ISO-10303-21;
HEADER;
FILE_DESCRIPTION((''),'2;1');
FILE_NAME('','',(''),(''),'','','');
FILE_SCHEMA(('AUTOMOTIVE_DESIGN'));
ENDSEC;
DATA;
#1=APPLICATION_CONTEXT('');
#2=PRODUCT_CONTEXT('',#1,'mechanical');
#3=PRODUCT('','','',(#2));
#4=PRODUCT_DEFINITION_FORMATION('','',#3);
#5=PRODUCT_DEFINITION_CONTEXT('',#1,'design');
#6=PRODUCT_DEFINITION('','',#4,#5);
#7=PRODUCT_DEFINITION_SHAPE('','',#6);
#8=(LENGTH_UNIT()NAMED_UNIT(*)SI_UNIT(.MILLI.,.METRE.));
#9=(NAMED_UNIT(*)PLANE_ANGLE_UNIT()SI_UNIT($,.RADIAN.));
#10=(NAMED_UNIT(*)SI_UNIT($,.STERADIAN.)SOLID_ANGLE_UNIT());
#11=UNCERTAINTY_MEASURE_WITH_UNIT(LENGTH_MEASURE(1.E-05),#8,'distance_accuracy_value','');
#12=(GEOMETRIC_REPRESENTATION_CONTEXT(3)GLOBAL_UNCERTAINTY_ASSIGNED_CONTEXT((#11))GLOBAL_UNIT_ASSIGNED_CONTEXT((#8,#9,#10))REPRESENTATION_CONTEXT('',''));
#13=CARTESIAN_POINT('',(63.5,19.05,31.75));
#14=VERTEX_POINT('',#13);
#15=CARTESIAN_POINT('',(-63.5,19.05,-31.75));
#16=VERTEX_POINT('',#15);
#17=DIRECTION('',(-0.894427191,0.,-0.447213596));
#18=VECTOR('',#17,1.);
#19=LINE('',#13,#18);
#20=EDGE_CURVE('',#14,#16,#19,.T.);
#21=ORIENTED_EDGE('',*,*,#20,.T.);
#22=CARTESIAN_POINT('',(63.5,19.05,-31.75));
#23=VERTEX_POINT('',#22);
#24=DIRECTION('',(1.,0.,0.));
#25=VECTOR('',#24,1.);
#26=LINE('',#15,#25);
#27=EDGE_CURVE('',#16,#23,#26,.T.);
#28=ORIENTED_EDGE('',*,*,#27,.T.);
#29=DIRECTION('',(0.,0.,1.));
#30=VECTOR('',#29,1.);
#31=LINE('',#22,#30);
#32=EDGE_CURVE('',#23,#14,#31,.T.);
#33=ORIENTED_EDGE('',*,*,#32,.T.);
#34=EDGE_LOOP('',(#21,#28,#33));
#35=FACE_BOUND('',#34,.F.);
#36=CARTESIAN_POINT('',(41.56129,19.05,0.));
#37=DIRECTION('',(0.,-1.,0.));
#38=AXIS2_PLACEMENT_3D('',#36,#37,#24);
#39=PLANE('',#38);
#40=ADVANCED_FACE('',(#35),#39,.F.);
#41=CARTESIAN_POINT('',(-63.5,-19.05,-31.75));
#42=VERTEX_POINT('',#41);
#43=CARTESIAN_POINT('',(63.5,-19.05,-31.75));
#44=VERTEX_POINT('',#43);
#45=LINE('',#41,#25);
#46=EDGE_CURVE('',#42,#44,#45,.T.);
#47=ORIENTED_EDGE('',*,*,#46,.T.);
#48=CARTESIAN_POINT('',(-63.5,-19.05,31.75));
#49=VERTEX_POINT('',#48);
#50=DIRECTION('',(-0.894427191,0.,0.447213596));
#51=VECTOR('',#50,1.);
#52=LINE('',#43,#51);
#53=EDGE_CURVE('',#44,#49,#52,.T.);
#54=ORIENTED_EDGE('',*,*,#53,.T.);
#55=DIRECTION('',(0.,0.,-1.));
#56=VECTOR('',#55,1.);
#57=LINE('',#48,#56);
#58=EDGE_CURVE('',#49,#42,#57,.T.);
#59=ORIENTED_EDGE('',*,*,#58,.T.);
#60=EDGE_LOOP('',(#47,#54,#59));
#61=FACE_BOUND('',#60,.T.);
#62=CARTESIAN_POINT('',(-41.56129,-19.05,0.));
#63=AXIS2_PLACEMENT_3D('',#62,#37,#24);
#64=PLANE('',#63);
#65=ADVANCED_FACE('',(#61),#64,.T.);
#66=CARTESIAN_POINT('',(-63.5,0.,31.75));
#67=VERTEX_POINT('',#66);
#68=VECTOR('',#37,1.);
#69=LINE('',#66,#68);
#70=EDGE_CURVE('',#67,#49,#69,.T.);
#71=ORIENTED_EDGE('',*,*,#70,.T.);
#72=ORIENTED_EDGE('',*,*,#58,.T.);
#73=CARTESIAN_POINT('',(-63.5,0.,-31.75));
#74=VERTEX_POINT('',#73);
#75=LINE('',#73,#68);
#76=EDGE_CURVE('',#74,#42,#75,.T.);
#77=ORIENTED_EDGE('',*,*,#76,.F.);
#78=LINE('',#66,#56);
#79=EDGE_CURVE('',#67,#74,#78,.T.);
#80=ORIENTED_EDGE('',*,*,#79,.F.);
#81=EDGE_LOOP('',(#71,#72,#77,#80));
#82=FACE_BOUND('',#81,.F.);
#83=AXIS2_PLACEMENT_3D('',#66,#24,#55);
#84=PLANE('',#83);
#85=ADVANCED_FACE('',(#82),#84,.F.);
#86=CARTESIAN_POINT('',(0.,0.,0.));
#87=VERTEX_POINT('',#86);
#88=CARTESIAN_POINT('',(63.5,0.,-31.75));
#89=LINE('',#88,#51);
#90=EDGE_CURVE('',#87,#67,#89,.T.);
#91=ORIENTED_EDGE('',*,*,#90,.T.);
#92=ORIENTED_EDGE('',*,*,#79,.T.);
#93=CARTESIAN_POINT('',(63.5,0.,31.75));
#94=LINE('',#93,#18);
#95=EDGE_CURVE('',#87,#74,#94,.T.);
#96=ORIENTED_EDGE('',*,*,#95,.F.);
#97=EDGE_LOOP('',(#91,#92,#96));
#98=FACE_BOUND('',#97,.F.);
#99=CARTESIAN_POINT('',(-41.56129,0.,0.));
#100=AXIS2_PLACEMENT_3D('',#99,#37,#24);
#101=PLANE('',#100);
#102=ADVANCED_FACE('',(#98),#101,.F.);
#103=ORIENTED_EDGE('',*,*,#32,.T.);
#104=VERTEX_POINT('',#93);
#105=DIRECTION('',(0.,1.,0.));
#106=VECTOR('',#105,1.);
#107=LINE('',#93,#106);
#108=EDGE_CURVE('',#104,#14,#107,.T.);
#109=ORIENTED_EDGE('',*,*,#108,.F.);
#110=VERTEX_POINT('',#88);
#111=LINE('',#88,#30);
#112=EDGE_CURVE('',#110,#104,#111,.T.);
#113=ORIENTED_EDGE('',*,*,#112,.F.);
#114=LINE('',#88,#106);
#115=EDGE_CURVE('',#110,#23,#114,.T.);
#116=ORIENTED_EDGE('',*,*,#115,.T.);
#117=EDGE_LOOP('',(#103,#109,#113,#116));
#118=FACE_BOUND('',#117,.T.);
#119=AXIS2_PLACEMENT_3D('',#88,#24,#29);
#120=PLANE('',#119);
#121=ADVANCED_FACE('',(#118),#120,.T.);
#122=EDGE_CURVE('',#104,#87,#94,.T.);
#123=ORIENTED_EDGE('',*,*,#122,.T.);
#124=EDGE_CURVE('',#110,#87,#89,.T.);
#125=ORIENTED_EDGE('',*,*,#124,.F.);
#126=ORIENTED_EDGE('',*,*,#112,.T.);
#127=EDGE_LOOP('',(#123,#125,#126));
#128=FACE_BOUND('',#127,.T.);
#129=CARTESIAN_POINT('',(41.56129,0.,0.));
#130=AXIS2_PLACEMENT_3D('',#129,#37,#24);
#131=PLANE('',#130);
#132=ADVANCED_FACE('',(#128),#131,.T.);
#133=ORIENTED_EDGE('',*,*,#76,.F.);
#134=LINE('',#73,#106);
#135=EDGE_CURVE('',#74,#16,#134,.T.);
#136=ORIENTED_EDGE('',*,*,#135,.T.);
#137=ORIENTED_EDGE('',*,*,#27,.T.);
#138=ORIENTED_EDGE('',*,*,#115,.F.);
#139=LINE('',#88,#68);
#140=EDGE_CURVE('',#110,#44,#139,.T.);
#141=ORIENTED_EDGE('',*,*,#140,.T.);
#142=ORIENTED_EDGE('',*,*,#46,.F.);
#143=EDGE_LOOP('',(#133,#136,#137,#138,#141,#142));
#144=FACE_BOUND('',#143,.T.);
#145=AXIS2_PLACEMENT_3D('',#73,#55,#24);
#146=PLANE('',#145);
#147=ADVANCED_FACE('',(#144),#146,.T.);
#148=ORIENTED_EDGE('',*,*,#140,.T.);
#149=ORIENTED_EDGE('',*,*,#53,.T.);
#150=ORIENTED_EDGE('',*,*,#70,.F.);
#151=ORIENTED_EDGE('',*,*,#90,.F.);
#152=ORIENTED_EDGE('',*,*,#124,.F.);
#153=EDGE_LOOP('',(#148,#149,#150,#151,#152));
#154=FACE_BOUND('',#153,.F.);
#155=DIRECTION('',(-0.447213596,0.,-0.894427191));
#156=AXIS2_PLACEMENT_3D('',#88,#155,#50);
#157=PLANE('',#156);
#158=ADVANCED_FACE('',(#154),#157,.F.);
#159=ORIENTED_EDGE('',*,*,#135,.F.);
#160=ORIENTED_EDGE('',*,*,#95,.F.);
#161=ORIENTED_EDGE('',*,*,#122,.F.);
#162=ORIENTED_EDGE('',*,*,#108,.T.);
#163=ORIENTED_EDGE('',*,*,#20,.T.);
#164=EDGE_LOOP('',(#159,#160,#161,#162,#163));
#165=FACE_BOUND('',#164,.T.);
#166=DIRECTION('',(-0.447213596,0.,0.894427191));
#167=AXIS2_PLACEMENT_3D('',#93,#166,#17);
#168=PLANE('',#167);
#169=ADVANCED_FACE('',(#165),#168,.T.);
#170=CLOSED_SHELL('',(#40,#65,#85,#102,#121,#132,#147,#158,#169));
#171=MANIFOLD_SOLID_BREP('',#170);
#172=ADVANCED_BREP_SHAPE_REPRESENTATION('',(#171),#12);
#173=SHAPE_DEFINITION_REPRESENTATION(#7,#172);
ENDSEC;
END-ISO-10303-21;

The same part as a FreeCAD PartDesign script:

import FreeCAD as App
import Part
import Sketcher

V = App.Vector
Q = App.Units.Quantity


def add_polygon(sketch, points):
    """Adds a closed chain of lines whose ends are joined by coincident constraints."""
    first, n = sketch.GeometryCount, len(points)
    for a, b in zip(points, points[1:] + points[:1]):
        sketch.addGeometry(Part.LineSegment(App.Vector(*a, 0), App.Vector(*b, 0)), False)
    for i in range(n):
        sketch.addConstraint(Sketcher.Constraint("Coincident", first + i, 2, first + (i + 1) % n, 1))

doc = App.newDocument("Part")
body = doc.addObject("PartDesign::Body", "Body")

sketch1 = body.newObject("Sketcher::SketchObject", "Sketch")
sketch1.AttachmentSupport = (doc.getObject("XZ_Plane"), [""])
sketch1.MapMode = "FlatFace"
add_polygon(sketch1, [(-63.5, 31.75), (-63.5, -31.75), (63.5, -31.75)])
sketch1.addConstraint([
    Sketcher.Constraint("Vertical", 0),
    Sketcher.Constraint("Horizontal", 1),
    Sketcher.Constraint("Symmetric", 1, 2, 2, 2, -1, 1),
    Sketcher.Constraint("DistanceX", 1, 1, 1, 2, Q("5 in")),
    Sketcher.Constraint("DistanceY", 0, 2, 0, 1, Q("2.5 in")),
])
pad1 = body.newObject("PartDesign::Pad", "Pad")
pad1.Profile = sketch1
pad1.Length = Q("0.75 in")

sketch2 = body.newObject("Sketcher::SketchObject", "Sketch001")
sketch2.AttachmentSupport = (doc.getObject("XZ_Plane"), [""])
sketch2.MapMode = "FlatFace"
add_polygon(sketch2, [(63.5, -31.75), (63.5, 31.75), (-63.5, -31.75)])
sketch2.addConstraint([
    Sketcher.Constraint("Vertical", 0),
    Sketcher.Constraint("Horizontal", 2),
    Sketcher.Constraint("Symmetric", 0, 2, 1, 2, -1, 1),
    Sketcher.Constraint("DistanceX", 2, 1, 2, 2, Q("5 in")),
    Sketcher.Constraint("DistanceY", 0, 1, 0, 2, Q("2.5 in")),
])
pad2 = body.newObject("PartDesign::Pad", "Pad001")
pad2.Profile = sketch2
pad2.Length = Q("0.75 in")
pad2.Reversed = True

doc.recompute()
